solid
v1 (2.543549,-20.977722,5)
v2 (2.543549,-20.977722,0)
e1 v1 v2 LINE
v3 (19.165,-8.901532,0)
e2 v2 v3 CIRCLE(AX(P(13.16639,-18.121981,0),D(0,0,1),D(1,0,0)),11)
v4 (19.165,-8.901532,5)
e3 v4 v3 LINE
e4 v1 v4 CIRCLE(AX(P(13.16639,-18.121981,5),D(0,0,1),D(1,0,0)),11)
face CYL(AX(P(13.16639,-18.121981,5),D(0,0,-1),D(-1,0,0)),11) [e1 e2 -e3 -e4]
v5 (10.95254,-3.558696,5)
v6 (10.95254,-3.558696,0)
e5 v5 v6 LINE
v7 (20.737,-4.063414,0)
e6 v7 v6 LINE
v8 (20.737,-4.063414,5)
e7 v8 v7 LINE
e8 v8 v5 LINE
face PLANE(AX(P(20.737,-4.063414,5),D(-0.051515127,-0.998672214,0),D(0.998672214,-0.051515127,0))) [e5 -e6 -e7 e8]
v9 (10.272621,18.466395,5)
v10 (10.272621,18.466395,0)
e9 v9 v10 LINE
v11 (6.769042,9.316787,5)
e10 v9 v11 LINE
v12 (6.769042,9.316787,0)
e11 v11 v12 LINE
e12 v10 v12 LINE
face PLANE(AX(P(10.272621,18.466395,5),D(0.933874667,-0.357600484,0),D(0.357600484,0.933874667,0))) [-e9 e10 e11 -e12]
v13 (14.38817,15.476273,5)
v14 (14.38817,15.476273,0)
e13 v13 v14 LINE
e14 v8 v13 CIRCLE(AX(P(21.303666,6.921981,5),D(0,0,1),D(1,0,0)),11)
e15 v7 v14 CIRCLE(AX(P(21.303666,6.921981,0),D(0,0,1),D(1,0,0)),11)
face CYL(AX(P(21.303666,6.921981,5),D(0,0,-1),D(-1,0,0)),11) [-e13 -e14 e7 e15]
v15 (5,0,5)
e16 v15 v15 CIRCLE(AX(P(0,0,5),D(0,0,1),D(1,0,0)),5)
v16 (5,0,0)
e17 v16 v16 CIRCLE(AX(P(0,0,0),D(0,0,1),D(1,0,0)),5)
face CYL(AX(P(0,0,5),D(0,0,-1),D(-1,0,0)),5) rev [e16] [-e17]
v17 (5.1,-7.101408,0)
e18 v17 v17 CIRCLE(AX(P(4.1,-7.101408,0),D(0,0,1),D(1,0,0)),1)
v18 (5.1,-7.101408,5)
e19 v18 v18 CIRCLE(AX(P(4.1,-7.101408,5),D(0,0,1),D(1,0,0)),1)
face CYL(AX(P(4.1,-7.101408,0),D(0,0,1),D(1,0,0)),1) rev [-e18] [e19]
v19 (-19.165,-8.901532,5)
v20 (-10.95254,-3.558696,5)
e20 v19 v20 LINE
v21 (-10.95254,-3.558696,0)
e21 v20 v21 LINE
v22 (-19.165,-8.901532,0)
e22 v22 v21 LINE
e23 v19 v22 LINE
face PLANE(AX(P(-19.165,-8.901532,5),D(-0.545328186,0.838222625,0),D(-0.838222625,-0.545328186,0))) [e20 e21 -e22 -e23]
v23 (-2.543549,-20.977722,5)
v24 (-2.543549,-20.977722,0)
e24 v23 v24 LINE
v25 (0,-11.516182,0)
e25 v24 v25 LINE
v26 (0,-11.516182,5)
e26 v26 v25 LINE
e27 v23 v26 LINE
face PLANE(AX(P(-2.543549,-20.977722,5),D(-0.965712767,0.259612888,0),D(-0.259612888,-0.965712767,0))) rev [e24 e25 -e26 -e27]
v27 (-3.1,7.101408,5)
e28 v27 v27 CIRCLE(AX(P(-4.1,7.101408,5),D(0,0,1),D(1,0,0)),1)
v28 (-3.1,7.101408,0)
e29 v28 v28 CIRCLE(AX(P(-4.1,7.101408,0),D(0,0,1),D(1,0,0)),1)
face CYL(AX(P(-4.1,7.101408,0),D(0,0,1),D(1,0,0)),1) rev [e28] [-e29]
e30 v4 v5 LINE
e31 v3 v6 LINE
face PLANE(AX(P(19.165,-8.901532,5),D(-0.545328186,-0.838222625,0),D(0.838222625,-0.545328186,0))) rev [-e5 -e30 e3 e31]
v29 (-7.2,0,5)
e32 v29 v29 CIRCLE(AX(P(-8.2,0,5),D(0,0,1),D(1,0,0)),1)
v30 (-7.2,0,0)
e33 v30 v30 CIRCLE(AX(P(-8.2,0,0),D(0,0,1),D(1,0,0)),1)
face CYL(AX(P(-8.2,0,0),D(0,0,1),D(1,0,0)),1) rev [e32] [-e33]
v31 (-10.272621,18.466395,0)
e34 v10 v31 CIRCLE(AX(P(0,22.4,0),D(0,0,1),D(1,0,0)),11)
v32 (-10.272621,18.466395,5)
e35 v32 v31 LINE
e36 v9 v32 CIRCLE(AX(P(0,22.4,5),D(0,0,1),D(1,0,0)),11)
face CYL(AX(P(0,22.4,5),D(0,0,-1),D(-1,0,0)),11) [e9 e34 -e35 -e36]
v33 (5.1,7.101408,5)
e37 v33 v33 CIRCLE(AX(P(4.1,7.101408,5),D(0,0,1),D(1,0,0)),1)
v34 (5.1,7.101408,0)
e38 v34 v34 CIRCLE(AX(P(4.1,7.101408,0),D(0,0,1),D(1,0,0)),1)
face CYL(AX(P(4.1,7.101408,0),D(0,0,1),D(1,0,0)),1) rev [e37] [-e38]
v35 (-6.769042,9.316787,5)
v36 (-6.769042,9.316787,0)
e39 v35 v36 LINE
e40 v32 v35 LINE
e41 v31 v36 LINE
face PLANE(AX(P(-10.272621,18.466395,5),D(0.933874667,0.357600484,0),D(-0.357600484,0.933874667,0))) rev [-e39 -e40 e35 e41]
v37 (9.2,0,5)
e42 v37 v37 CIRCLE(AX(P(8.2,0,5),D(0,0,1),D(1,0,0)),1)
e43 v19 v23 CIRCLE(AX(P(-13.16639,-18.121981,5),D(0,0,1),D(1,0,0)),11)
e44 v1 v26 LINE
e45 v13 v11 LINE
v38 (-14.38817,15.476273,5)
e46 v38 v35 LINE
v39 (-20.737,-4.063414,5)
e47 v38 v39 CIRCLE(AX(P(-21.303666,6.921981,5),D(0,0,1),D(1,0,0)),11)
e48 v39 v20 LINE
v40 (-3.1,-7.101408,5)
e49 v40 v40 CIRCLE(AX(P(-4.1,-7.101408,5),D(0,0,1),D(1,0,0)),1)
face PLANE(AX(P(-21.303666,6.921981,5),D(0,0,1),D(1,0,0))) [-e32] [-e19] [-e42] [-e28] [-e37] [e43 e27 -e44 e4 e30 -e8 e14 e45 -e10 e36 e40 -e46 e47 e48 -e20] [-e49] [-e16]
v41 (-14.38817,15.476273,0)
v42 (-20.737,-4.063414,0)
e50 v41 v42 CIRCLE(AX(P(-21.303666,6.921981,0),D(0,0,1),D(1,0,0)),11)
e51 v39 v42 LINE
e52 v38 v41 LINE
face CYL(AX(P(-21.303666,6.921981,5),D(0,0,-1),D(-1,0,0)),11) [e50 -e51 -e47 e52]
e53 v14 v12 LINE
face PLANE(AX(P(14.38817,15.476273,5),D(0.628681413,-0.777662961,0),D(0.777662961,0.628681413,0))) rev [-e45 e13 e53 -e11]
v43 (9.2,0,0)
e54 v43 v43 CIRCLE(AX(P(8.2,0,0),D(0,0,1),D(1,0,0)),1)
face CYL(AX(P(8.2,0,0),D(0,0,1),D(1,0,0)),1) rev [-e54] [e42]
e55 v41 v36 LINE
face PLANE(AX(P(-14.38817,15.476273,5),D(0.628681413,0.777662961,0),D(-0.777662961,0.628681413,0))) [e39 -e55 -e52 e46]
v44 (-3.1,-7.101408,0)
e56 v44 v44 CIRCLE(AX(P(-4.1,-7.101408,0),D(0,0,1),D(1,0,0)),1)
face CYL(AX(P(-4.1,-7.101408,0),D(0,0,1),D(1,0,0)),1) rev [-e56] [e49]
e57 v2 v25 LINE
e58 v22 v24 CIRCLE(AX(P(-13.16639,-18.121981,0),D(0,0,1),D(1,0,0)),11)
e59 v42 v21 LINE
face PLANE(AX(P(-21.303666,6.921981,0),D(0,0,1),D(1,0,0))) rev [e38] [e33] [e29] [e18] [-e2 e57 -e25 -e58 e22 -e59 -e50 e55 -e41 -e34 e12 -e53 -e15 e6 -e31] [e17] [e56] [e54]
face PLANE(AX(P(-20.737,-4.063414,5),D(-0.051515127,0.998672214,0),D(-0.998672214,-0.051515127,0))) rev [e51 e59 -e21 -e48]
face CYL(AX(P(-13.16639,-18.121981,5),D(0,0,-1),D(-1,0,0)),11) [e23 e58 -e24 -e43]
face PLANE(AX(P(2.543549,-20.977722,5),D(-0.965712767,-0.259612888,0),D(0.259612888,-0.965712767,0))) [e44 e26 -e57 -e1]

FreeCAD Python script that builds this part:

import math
import FreeCAD as App
import Part
import Sketcher

doc = App.newDocument("Part")
params = doc.addObject("Spreadsheet::Sheet", "Params")
for row, (alias, value) in enumerate([
    ("sketch1_radius", "11 mm"),
    ("pad1_length", "5 mm"),
    ("sketch2_diameter", "2 mm"),
    ("pocket1_length", "5 mm"),
    ("sketch3_diameter", "10 mm"),
    ("pad2_length", "5 mm"),
    ("sketch4_diameter", "10 mm"),
    ("pocket2_length", "5 mm"),
], start=1):
    params.set(f"A{row}", alias)
    params.set(f"B{row}", "=" + value)
    params.setAlias(f"B{row}", alias)

body = doc.addObject("PartDesign::Body", "Body")

# Sketch on XY plane
sketch1 = body.newObject("Sketcher::SketchObject", "Sketch")
sketch1.AttachmentSupport = (doc.getObject("XY_Plane"), [""])
sketch1.MapMode = "FlatFace"
sketch1.addGeometry(Part.LineSegment(App.Vector(-10, 18, 0), App.Vector(-7, 9, 0)), False)
sketch1.addGeometry(Part.LineSegment(App.Vector(-7, 9, 0), App.Vector(-14, 15, 0)), False)
sketch1.addGeometry(Part.ArcOfCircle(Part.Circle(App.Vector(-21, 7, 0), App.Vector(0, 0, 1), 11), math.radians(51), math.radians(273)), False)
sketch1.addGeometry(Part.LineSegment(App.Vector(-21, -4, 0), App.Vector(-11, -4, 0)), False)
sketch1.addGeometry(Part.LineSegment(App.Vector(-11, -4, 0), App.Vector(-19, -9, 0)), False)
sketch1.addGeometry(Part.ArcOfCircle(Part.Circle(App.Vector(-13, -18, 0), App.Vector(0, 0, 1), 11), math.radians(123), math.radians(345)), False)
sketch1.addGeometry(Part.LineSegment(App.Vector(-3, -21, 0), App.Vector(0, -12, 0)), False)
sketch1.addGeometry(Part.LineSegment(App.Vector(0, -12, 0), App.Vector(3, -21, 0)), False)
sketch1.addGeometry(Part.ArcOfCircle(Part.Circle(App.Vector(13, -18, 0), App.Vector(0, 0, 1), 11), math.radians(-165), math.radians(57)), False)
sketch1.addGeometry(Part.LineSegment(App.Vector(19, -9, 0), App.Vector(11, -4, 0)), False)
sketch1.addGeometry(Part.LineSegment(App.Vector(11, -4, 0), App.Vector(21, -4, 0)), False)
sketch1.addGeometry(Part.ArcOfCircle(Part.Circle(App.Vector(21, 7, 0), App.Vector(0, 0, 1), 11), math.radians(-93), math.radians(129)), False)
sketch1.addGeometry(Part.LineSegment(App.Vector(14, 15, 0), App.Vector(7, 9, 0)), False)
sketch1.addGeometry(Part.LineSegment(App.Vector(7, 9, 0), App.Vector(10, 18, 0)), False)
sketch1.addGeometry(Part.ArcOfCircle(Part.Circle(App.Vector(0, 22, 0), App.Vector(0, 0, 1), 11), math.radians(-21), math.radians(201)), False)
sketch1.addConstraint(Sketcher.Constraint("Coincident", 0, 2, 1, 1))
sketch1.addConstraint(Sketcher.Constraint("Tangent", 1, 2, 2, 1))
sketch1.addConstraint(Sketcher.Constraint("Tangent", 2, 2, 3, 1))
sketch1.addConstraint(Sketcher.Constraint("Coincident", 3, 2, 4, 1))
sketch1.addConstraint(Sketcher.Constraint("Tangent", 4, 2, 5, 1))
sketch1.addConstraint(Sketcher.Constraint("Tangent", 5, 2, 6, 1))
sketch1.addConstraint(Sketcher.Constraint("Coincident", 6, 2, 7, 1))
sketch1.addConstraint(Sketcher.Constraint("Tangent", 7, 2, 8, 1))
sketch1.addConstraint(Sketcher.Constraint("Tangent", 8, 2, 9, 1))
sketch1.addConstraint(Sketcher.Constraint("Coincident", 9, 2, 10, 1))
sketch1.addConstraint(Sketcher.Constraint("Tangent", 10, 2, 11, 1))
sketch1.addConstraint(Sketcher.Constraint("Tangent", 11, 2, 12, 1))
sketch1.addConstraint(Sketcher.Constraint("Coincident", 12, 2, 13, 1))
sketch1.addConstraint(Sketcher.Constraint("Tangent", 13, 2, 14, 1))
sketch1.addConstraint(Sketcher.Constraint("Tangent", 14, 2, 0, 1))
sketch1.addConstraint(Sketcher.Constraint("Equal", 2, 5))
sketch1.addConstraint(Sketcher.Constraint("Equal", 5, 8))
sketch1.addConstraint(Sketcher.Constraint("Equal", 8, 11))
sketch1.addConstraint(Sketcher.Constraint("Equal", 11, 14))
sketch1.addConstraint(Sketcher.Constraint("Symmetric", 5, 3, 8, 3, -2))
sketch1.addConstraint(Sketcher.Constraint("Symmetric", 2, 3, 11, 3, -2))
sketch1.addConstraint(Sketcher.Constraint("Symmetric", 3, 2, 9, 2, -2))
sketch1.addConstraint(Sketcher.Constraint("Symmetric", 0, 2, 12, 2, -2))
sketch1.addConstraint(Sketcher.Constraint("PointOnObject", 14, 3, -2))
sketch1.addConstraint(Sketcher.Constraint("PointOnObject", 6, 2, -2))
sketch1.addConstraint(Sketcher.Constraint("Equal", 0, 1))
sketch1.addConstraint(Sketcher.Constraint("Equal", 1, 3))
sketch1.addConstraint(Sketcher.Constraint("Equal", 3, 4))
sketch1.addConstraint(Sketcher.Constraint("Equal", 4, 6))
sketch1.addConstraint(Sketcher.Constraint("Radius", 2, 11.0))
sketch1.addConstraint(Sketcher.Constraint("DistanceY", -1, 1, 14, 3, 22.4))
sketch1.addConstraint(Sketcher.Constraint("DistanceX", 2, 2, -1, 1, 20.737))
sketch1.addConstraint(Sketcher.Constraint("DistanceX", 4, 2, -1, 1, 19.165))
sketch1.addConstraint(Sketcher.Constraint("DistanceY", 2, 2, 0, 2, 13.3802))
sketch1.addConstraint(Sketcher.Constraint("DistanceY", 5, 3, 6, 2, 6.605799))
sketch1.addConstraint(Sketcher.Constraint("DistanceX", 5, 2, 7, 2, 5.087098))
sketch1.setExpression("Constraints[29]", "Params.sketch1_radius")
pad1 = body.newObject("PartDesign::Pad", "Pad")
pad1.Profile = sketch1
pad1.setExpression("Length", "Params.pad1_length")

# Sketch on XY plane
sketch2 = body.newObject("Sketcher::SketchObject", "Sketch001")
sketch2.AttachmentSupport = (doc.getObject("XY_Plane"), [""])
sketch2.MapMode = "FlatFace"
sketch2.AttachmentOffset = App.Placement(App.Vector(0, 0, 5), App.Rotation())
sketch2.addGeometry(Part.Circle(App.Vector(8.2, 0, 0), App.Vector(0, 0, 1), 1), False)
sketch2.addGeometry(Part.Circle(App.Vector(4.1, -7.1, 0), App.Vector(0, 0, 1), 1), False)
sketch2.addGeometry(Part.Circle(App.Vector(-4.1, -7.1, 0), App.Vector(0, 0, 1), 1), False)
sketch2.addGeometry(Part.Circle(App.Vector(-8.2, 0, 0), App.Vector(0, 0, 1), 1), False)
sketch2.addGeometry(Part.Circle(App.Vector(-4.1, 7.1, 0), App.Vector(0, 0, 1), 1), False)
sketch2.addGeometry(Part.Circle(App.Vector(4.1, 7.1, 0), App.Vector(0, 0, 1), 1), False)
sketch2.addConstraint(Sketcher.Constraint("Equal", 0, 1))
sketch2.addConstraint(Sketcher.Constraint("Equal", 1, 2))
sketch2.addConstraint(Sketcher.Constraint("Equal", 2, 3))
sketch2.addConstraint(Sketcher.Constraint("Equal", 3, 4))
sketch2.addConstraint(Sketcher.Constraint("Equal", 4, 5))
sketch2.addConstraint(Sketcher.Constraint("Symmetric", 0, 3, 3, 3, -1, 1))
sketch2.addConstraint(Sketcher.Constraint("Symmetric", 1, 3, 4, 3, -1, 1))
sketch2.addConstraint(Sketcher.Constraint("Symmetric", 2, 3, 5, 3, -1, 1))
sketch2.addConstraint(Sketcher.Constraint("Symmetric", 1, 3, 2, 3, -2))
sketch2.addConstraint(Sketcher.Constraint("PointOnObject", 0, 3, -1))
sketch2.addConstraint(Sketcher.Constraint("Diameter", 0, 2.0))
sketch2.addConstraint(Sketcher.Constraint("DistanceX", -1, 1, 0, 3, 8.2))
sketch2.addConstraint(Sketcher.Constraint("DistanceX", -1, 1, 1, 3, 4.1))
sketch2.addConstraint(Sketcher.Constraint("DistanceY", 1, 3, -1, 1, 7.101408))
sketch2.setExpression("Constraints[10]", "Params.sketch2_diameter")
pocket1 = body.newObject("PartDesign::Pocket", "Pocket")
pocket1.Profile = sketch2
pocket1.setExpression("Length", "Params.pocket1_length")

# Sketch on XY plane
sketch3 = body.newObject("Sketcher::SketchObject", "Sketch002")
sketch3.AttachmentSupport = (doc.getObject("XY_Plane"), [""])
sketch3.MapMode = "FlatFace"
sketch3.addGeometry(Part.Circle(App.Vector(0, 0, 0), App.Vector(0, 0, 1), 5), False)
sketch3.addConstraint(Sketcher.Constraint("Coincident", 0, 3, -1, 1))
sketch3.addConstraint(Sketcher.Constraint("Diameter", 0, 10.0))
sketch3.setExpression("Constraints[1]", "Params.sketch3_diameter")
pad2 = body.newObject("PartDesign::Pad", "Pad001")
pad2.Profile = sketch3
pad2.setExpression("Length", "Params.pad2_length")

# Sketch on XY plane
sketch4 = body.newObject("Sketcher::SketchObject", "Sketch003")
sketch4.AttachmentSupport = (doc.getObject("XY_Plane"), [""])
sketch4.MapMode = "FlatFace"
sketch4.addGeometry(Part.Circle(App.Vector(0, 0, 0), App.Vector(0, 0, 1), 5), False)
sketch4.addConstraint(Sketcher.Constraint("Coincident", 0, 3, -1, 1))
sketch4.addConstraint(Sketcher.Constraint("Diameter", 0, 10.0))
sketch4.setExpression("Constraints[1]", "Params.sketch4_diameter")
pocket2 = body.newObject("PartDesign::Pocket", "Pocket001")
pocket2.Profile = sketch4
pocket2.setExpression("Length", "Params.pocket2_length")
pocket2.Reversed = True

doc.recompute()
